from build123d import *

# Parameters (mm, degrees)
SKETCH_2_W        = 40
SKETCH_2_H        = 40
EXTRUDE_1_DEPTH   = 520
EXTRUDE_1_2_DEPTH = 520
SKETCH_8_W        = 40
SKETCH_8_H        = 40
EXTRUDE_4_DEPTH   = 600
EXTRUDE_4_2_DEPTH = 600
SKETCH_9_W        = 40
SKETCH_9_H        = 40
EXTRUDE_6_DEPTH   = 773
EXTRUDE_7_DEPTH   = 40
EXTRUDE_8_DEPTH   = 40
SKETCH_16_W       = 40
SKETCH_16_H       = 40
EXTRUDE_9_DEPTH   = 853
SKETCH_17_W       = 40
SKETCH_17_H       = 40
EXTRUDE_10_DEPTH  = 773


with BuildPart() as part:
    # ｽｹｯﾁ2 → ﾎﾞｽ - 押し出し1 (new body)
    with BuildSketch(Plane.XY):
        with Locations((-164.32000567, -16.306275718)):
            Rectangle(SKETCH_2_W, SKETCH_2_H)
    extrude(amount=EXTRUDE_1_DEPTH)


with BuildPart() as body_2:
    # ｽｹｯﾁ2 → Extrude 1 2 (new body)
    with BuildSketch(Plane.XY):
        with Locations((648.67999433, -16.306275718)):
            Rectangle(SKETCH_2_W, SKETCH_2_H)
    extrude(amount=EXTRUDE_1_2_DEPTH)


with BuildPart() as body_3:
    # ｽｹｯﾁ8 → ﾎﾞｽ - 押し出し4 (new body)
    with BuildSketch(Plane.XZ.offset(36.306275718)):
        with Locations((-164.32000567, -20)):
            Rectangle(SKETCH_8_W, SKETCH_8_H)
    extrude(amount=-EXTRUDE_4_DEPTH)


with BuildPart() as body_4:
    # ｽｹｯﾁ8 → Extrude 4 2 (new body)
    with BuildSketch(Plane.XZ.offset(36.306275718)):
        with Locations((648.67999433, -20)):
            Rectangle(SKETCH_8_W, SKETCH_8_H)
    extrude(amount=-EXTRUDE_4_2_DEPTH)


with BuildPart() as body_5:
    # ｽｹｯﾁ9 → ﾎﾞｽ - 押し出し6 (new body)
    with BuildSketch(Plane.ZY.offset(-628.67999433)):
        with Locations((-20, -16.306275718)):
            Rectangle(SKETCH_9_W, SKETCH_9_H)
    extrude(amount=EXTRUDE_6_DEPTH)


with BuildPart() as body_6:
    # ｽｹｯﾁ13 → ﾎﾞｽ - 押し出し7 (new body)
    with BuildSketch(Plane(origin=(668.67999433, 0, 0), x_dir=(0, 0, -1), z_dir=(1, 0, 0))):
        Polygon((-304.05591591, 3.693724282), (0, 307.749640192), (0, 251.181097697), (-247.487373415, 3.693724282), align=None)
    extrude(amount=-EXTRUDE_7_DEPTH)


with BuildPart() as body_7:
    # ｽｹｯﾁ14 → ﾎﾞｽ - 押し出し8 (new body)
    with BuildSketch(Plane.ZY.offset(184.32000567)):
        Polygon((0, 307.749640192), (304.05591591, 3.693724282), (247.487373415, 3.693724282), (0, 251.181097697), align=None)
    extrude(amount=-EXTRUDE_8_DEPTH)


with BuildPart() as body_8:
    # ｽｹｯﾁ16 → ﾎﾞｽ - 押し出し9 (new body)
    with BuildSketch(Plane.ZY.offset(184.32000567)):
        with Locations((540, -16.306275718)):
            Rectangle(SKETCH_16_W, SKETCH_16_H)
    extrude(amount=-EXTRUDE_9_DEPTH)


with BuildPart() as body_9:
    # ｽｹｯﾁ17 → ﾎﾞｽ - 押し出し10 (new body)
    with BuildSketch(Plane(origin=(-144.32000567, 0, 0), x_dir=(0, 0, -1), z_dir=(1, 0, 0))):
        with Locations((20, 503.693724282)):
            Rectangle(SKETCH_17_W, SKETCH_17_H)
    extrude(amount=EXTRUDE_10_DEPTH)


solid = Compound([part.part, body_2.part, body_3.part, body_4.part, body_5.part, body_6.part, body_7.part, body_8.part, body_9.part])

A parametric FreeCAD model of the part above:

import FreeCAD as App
import Part
import Sketcher
from FreeCAD import Vector
Q = App.Units.Quantity

doc = App.newDocument("Part")
body = doc.addObject("PartDesign::Body", "Body")

# Sketch on XY plane
sketch1 = body.newObject("Sketcher::SketchObject", "Sketch")
sketch1.AttachmentSupport = (doc.getObject("XY_Plane"), [""])
sketch1.MapMode = "FlatFace"
sketch1.addGeometry(Part.LineSegment(Vector(-184, 4, 0), Vector(-184, -36, 0)), False)
sketch1.addGeometry(Part.LineSegment(Vector(-184, -36, 0), Vector(-144, -36, 0)), False)
sketch1.addGeometry(Part.LineSegment(Vector(-144, -36, 0), Vector(-144, 4, 0)), False)
sketch1.addGeometry(Part.LineSegment(Vector(-144, 4, 0), Vector(-184, 4, 0)), False)
sketch1.addConstraint(Sketcher.Constraint("Coincident", 0, 2, 1, 1))
sketch1.addConstraint(Sketcher.Constraint("Coincident", 1, 2, 2, 1))
sketch1.addConstraint(Sketcher.Constraint("Coincident", 2, 2, 3, 1))
sketch1.addConstraint(Sketcher.Constraint("Coincident", 3, 2, 0, 1))
sketch1.addConstraint(Sketcher.Constraint("Vertical", 0))
sketch1.addConstraint(Sketcher.Constraint("Horizontal", 1))
sketch1.addConstraint(Sketcher.Constraint("Vertical", 2))
sketch1.addConstraint(Sketcher.Constraint("Horizontal", 3))
sketch1.addConstraint(Sketcher.Constraint("Equal", 3, 0))
sketch1.addConstraint(Sketcher.Constraint("DistanceX", 1, 1, 1, 2, Q("40 mm")))
sketch1.addConstraint(Sketcher.Constraint("DistanceX", 0, 2, -1, 1, Q("184.320006 mm")))
sketch1.addConstraint(Sketcher.Constraint("DistanceY", 0, 2, -1, 1, Q("36.306276 mm")))
pad1 = body.newObject("PartDesign::Pad", "Pad")
pad1.Profile = sketch1
pad1.Length = 520
body2 = doc.addObject("PartDesign::Body", "Body001")

# Sketch on XY plane
sketch2 = body2.newObject("Sketcher::SketchObject", "Sketch001")
sketch2.AttachmentSupport = (doc.getObject("XY_Plane001"), [""])
sketch2.MapMode = "FlatFace"
sketch2.addGeometry(Part.LineSegment(Vector(629, 4, 0), Vector(629, -36, 0)), False)
sketch2.addGeometry(Part.LineSegment(Vector(629, -36, 0), Vector(669, -36, 0)), False)
sketch2.addGeometry(Part.LineSegment(Vector(669, -36, 0), Vector(669, 4, 0)), False)
sketch2.addGeometry(Part.LineSegment(Vector(669, 4, 0), Vector(629, 4, 0)), False)
sketch2.addConstraint(Sketcher.Constraint("Coincident", 0, 2, 1, 1))
sketch2.addConstraint(Sketcher.Constraint("Coincident", 1, 2, 2, 1))
sketch2.addConstraint(Sketcher.Constraint("Coincident", 2, 2, 3, 1))
sketch2.addConstraint(Sketcher.Constraint("Coincident", 3, 2, 0, 1))
sketch2.addConstraint(Sketcher.Constraint("Vertical", 0))
sketch2.addConstraint(Sketcher.Constraint("Horizontal", 1))
sketch2.addConstraint(Sketcher.Constraint("Vertical", 2))
sketch2.addConstraint(Sketcher.Constraint("Horizontal", 3))
sketch2.addConstraint(Sketcher.Constraint("Equal", 3, 0))
sketch2.addConstraint(Sketcher.Constraint("DistanceX", 1, 1, 1, 2, Q("40 mm")))
sketch2.addConstraint(Sketcher.Constraint("DistanceX", -1, 1, 0, 2, Q("628.679994 mm")))
sketch2.addConstraint(Sketcher.Constraint("DistanceY", 0, 2, -1, 1, Q("36.306276 mm")))
pad2 = body2.newObject("PartDesign::Pad", "Pad001")
pad2.Profile = sketch2
pad2.Length = 520
body3 = doc.addObject("PartDesign::Body", "Body002")

# Sketch on XZ plane
sketch3 = body3.newObject("Sketcher::SketchObject", "Sketch002")
sketch3.AttachmentSupport = (doc.getObject("XZ_Plane002"), [""])
sketch3.MapMode = "FlatFace"
sketch3.AttachmentOffset = App.Placement(Vector(0, 0, 36.306276), App.Rotation())
sketch3.addGeometry(Part.LineSegment(Vector(-184, 0, 0), Vector(-184, -40, 0)), False)
sketch3.addGeometry(Part.LineSegment(Vector(-184, -40, 0), Vector(-144, -40, 0)), False)
sketch3.addGeometry(Part.LineSegment(Vector(-144, -40, 0), Vector(-144, 0, 0)), False)
sketch3.addGeometry(Part.LineSegment(Vector(-144, 0, 0), Vector(-184, 0, 0)), False)
sketch3.addConstraint(Sketcher.Constraint("Coincident", 0, 2, 1, 1))
sketch3.addConstraint(Sketcher.Constraint("Coincident", 1, 2, 2, 1))
sketch3.addConstraint(Sketcher.Constraint("Coincident", 2, 2, 3, 1))
sketch3.addConstraint(Sketcher.Constraint("Coincident", 3, 2, 0, 1))
sketch3.addConstraint(Sketcher.Constraint("Vertical", 0))
sketch3.addConstraint(Sketcher.Constraint("Horizontal", 1))
sketch3.addConstraint(Sketcher.Constraint("Vertical", 2))
sketch3.addConstraint(Sketcher.Constraint("Horizontal", 3))
sketch3.addConstraint(Sketcher.Constraint("PointOnObject", 2, 2, -1))
sketch3.addConstraint(Sketcher.Constraint("Equal", 3, 0))
sketch3.addConstraint(Sketcher.Constraint("DistanceX", 1, 1, 1, 2, Q("40 mm")))
sketch3.addConstraint(Sketcher.Constraint("DistanceX", 0, 2, -1, 1, Q("184.320006 mm")))
pad3 = body3.newObject("PartDesign::Pad", "Pad002")
pad3.Profile = sketch3
pad3.Length = 600
pad3.Reversed = True
body4 = doc.addObject("PartDesign::Body", "Body003")

# Sketch on XZ plane
sketch4 = body4.newObject("Sketcher::SketchObject", "Sketch003")
sketch4.AttachmentSupport = (doc.getObject("XZ_Plane003"), [""])
sketch4.MapMode = "FlatFace"
sketch4.AttachmentOffset = App.Placement(Vector(0, 0, 36.306276), App.Rotation())
sketch4.addGeometry(Part.LineSegment(Vector(629, 0, 0), Vector(629, -40, 0)), False)
sketch4.addGeometry(Part.LineSegment(Vector(629, -40, 0), Vector(669, -40, 0)), False)
sketch4.addGeometry(Part.LineSegment(Vector(669, -40, 0), Vector(669, 0, 0)), False)
sketch4.addGeometry(Part.LineSegment(Vector(669, 0, 0), Vector(629, 0, 0)), False)
sketch4.addConstraint(Sketcher.Constraint("Coincident", 0, 2, 1, 1))
sketch4.addConstraint(Sketcher.Constraint("Coincident", 1, 2, 2, 1))
sketch4.addConstraint(Sketcher.Constraint("Coincident", 2, 2, 3, 1))
sketch4.addConstraint(Sketcher.Constraint("Coincident", 3, 2, 0, 1))
sketch4.addConstraint(Sketcher.Constraint("Vertical", 0))
sketch4.addConstraint(Sketcher.Constraint("Horizontal", 1))
sketch4.addConstraint(Sketcher.Constraint("Vertical", 2))
sketch4.addConstraint(Sketcher.Constraint("Horizontal", 3))
sketch4.addConstraint(Sketcher.Constraint("PointOnObject", 2, 2, -1))
sketch4.addConstraint(Sketcher.Constraint("Equal", 3, 0))
sketch4.addConstraint(Sketcher.Constraint("DistanceX", 1, 1, 1, 2, Q("40 mm")))
sketch4.addConstraint(Sketcher.Constraint("DistanceX", -1, 1, 0, 2, Q("628.679994 mm")))
pad4 = body4.newObject("PartDesign::Pad", "Pad003")
pad4.Profile = sketch4
pad4.Length = 600
pad4.Reversed = True
body5 = doc.addObject("PartDesign::Body", "Body004")

# Sketch on YZ plane
sketch5 = body5.newObject("Sketcher::SketchObject", "Sketch004")
sketch5.AttachmentSupport = (doc.getObject("YZ_Plane004"), [""])
sketch5.MapMode = "FlatFace"
sketch5.AttachmentOffset = App.Placement(Vector(0, 0, 628.679994), App.Rotation())
sketch5.addGeometry(Part.LineSegment(Vector(4, -40, 0), Vector(-36, -40, 0)), False)
sketch5.addGeometry(Part.LineSegment(Vector(-36, -40, 0), Vector(-36, 0, 0)), False)
sketch5.addGeometry(Part.LineSegment(Vector(-36, 0, 0), Vector(4, 0, 0)), False)
sketch5.addGeometry(Part.LineSegment(Vector(4, 0, 0), Vector(4, -40, 0)), False)
sketch5.addConstraint(Sketcher.Constraint("Coincident", 0, 2, 1, 1))
sketch5.addConstraint(Sketcher.Constraint("Coincident", 1, 2, 2, 1))
sketch5.addConstraint(Sketcher.Constraint("Coincident", 2, 2, 3, 1))
sketch5.addConstraint(Sketcher.Constraint("Coincident", 3, 2, 0, 1))
sketch5.addConstraint(Sketcher.Constraint("Horizontal", 0))
sketch5.addConstraint(Sketcher.Constraint("Vertical", 1))
sketch5.addConstraint(Sketcher.Constraint("Horizontal", 2))
sketch5.addConstraint(Sketcher.Constraint("Vertical", 3))
sketch5.addConstraint(Sketcher.Constraint("PointOnObject", 1, 2, -1))
sketch5.addConstraint(Sketcher.Constraint("Equal", 2, 1))
sketch5.addConstraint(Sketcher.Constraint("DistanceX", 0, 2, 0, 1, Q("40 mm")))
sketch5.addConstraint(Sketcher.Constraint("DistanceX", 0, 2, -1, 1, Q("36.306276 mm")))
pad5 = body5.newObject("PartDesign::Pad", "Pad004")
pad5.Profile = sketch5
pad5.Length = 773
pad5.Reversed = True
body6 = doc.addObject("PartDesign::Body", "Body005")

# Sketch on YZ plane
sketch6 = body6.newObject("Sketcher::SketchObject", "Sketch005")
sketch6.AttachmentSupport = (doc.getObject("YZ_Plane005"), [""])
sketch6.MapMode = "FlatFace"
sketch6.AttachmentOffset = App.Placement(Vector(0, 0, 668.679994), App.Rotation())
sketch6.addGeometry(Part.LineSegment(Vector(308, 0, 0), Vector(4, 304, 0)), False)
sketch6.addGeometry(Part.LineSegment(Vector(4, 304, 0), Vector(4, 247, 0)), False)
sketch6.addGeometry(Part.LineSegment(Vector(4, 247, 0), Vector(251, 0, 0)), False)
sketch6.addGeometry(Part.LineSegment(Vector(251, 0, 0), Vector(308, 0, 0)), False)
sketch6.addConstraint(Sketcher.Constraint("Coincident", 0, 2, 1, 1))
sketch6.addConstraint(Sketcher.Constraint("Coincident", 1, 2, 2, 1))
sketch6.addConstraint(Sketcher.Constraint("Coincident", 2, 2, 3, 1))
sketch6.addConstraint(Sketcher.Constraint("Coincident", 3, 2, 0, 1))
sketch6.addConstraint(Sketcher.Constraint("Vertical", 1))
sketch6.addConstraint(Sketcher.Constraint("Horizontal", 3))
sketch6.addConstraint(Sketcher.Constraint("PointOnObject", 2, 2, -1))
sketch6.addConstraint(Sketcher.Constraint("Parallel", 0, 2))
sketch6.addConstraint(Sketcher.Constraint("Equal", 3, 1))
sketch6.addConstraint(Sketcher.Constraint("Distance", 0, Q("430 mm")))
sketch6.addConstraint(Sketcher.Constraint("Distance", 2, Q("350 mm")))
sketch6.addConstraint(Sketcher.Constraint("DistanceX", -1, 1, 3, 2, Q("307.74964 mm")))
pad6 = body6.newObject("PartDesign::Pad", "Pad005")
pad6.Profile = sketch6
pad6.Length = 40
pad6.Reversed = True
body7 = doc.addObject("PartDesign::Body", "Body006")

# Sketch on YZ plane
sketch7 = body7.newObject("Sketcher::SketchObject", "Sketch006")
sketch7.AttachmentSupport = (doc.getObject("YZ_Plane006"), [""])
sketch7.MapMode = "FlatFace"
sketch7.AttachmentOffset = App.Placement(Vector(0, 0, -184.320006), App.Rotation())
sketch7.addGeometry(Part.LineSegment(Vector(4, 304, 0), Vector(308, 0, 0)), False)
sketch7.addGeometry(Part.LineSegment(Vector(308, 0, 0), Vector(251, 0, 0)), False)
sketch7.addGeometry(Part.LineSegment(Vector(251, 0, 0), Vector(4, 247, 0)), False)
sketch7.addGeometry(Part.LineSegment(Vector(4, 247, 0), Vector(4, 304, 0)), False)
sketch7.addConstraint(Sketcher.Constraint("Coincident", 0, 2, 1, 1))
sketch7.addConstraint(Sketcher.Constraint("Coincident", 1, 2, 2, 1))
sketch7.addConstraint(Sketcher.Constraint("Coincident", 2, 2, 3, 1))
sketch7.addConstraint(Sketcher.Constraint("Coincident", 3, 2, 0, 1))
sketch7.addConstraint(Sketcher.Constraint("Horizontal", 1))
sketch7.addConstraint(Sketcher.Constraint("Vertical", 3))
sketch7.addConstraint(Sketcher.Constraint("PointOnObject", 0, 2, -1))
sketch7.addConstraint(Sketcher.Constraint("Parallel", 0, 2))
sketch7.addConstraint(Sketcher.Constraint("Equal", 1, 3))
sketch7.addConstraint(Sketcher.Constraint("Distance", 0, Q("430 mm")))
sketch7.addConstraint(Sketcher.Constraint("Distance", 2, Q("350 mm")))
sketch7.addConstraint(Sketcher.Constraint("DistanceX", -1, 1, 0, 2, Q("307.74964 mm")))
pad7 = body7.newObject("PartDesign::Pad", "Pad006")
pad7.Profile = sketch7
pad7.Length = 40
body8 = doc.addObject("PartDesign::Body", "Body007")

# Sketch on YZ plane
sketch8 = body8.newObject("Sketcher::SketchObject", "Sketch007")
sketch8.AttachmentSupport = (doc.getObject("YZ_Plane007"), [""])
sketch8.MapMode = "FlatFace"
sketch8.AttachmentOffset = App.Placement(Vector(0, 0, -184.320006), App.Rotation())
sketch8.addGeometry(Part.LineSegment(Vector(4, 520, 0), Vector(-36, 520, 0)), False)
sketch8.addGeometry(Part.LineSegment(Vector(-36, 520, 0), Vector(-36, 560, 0)), False)
sketch8.addGeometry(Part.LineSegment(Vector(-36, 560, 0), Vector(4, 560, 0)), False)
sketch8.addGeometry(Part.LineSegment(Vector(4, 560, 0), Vector(4, 520, 0)), False)
sketch8.addConstraint(Sketcher.Constraint("Coincident", 0, 2, 1, 1))
sketch8.addConstraint(Sketcher.Constraint("Coincident", 1, 2, 2, 1))
sketch8.addConstraint(Sketcher.Constraint("Coincident", 2, 2, 3, 1))
sketch8.addConstraint(Sketcher.Constraint("Coincident", 3, 2, 0, 1))
sketch8.addConstraint(Sketcher.Constraint("Horizontal", 0))
sketch8.addConstraint(Sketcher.Constraint("Vertical", 1))
sketch8.addConstraint(Sketcher.Constraint("Horizontal", 2))
sketch8.addConstraint(Sketcher.Constraint("Vertical", 3))
sketch8.addConstraint(Sketcher.Constraint("Equal", 2, 1))
sketch8.addConstraint(Sketcher.Constraint("DistanceX", 0, 2, 0, 1, Q("40 mm")))
sketch8.addConstraint(Sketcher.Constraint("DistanceY", -1, 1, 0, 2, Q("520 mm")))
sketch8.addConstraint(Sketcher.Constraint("DistanceX", 0, 2, -1, 1, Q("36.306276 mm")))
pad8 = body8.newObject("PartDesign::Pad", "Pad007")
pad8.Profile = sketch8
pad8.Length = 853
body9 = doc.addObject("PartDesign::Body", "Body008")

# Sketch on YZ plane
sketch9 = body9.newObject("Sketcher::SketchObject", "Sketch008")
sketch9.AttachmentSupport = (doc.getObject("YZ_Plane008"), [""])
sketch9.MapMode = "FlatFace"
sketch9.AttachmentOffset = App.Placement(Vector(0, 0, -144.320006), App.Rotation())
sketch9.addGeometry(Part.LineSegment(Vector(524, 0, 0), Vector(484, 0, 0)), False)
sketch9.addGeometry(Part.LineSegment(Vector(484, 0, 0), Vector(484, -40, 0)), False)
sketch9.addGeometry(Part.LineSegment(Vector(484, -40, 0), Vector(524, -40, 0)), False)
sketch9.addGeometry(Part.LineSegment(Vector(524, -40, 0), Vector(524, 0, 0)), False)
sketch9.addConstraint(Sketcher.Constraint("Coincident", 0, 2, 1, 1))
sketch9.addConstraint(Sketcher.Constraint("Coincident", 1, 2, 2, 1))
sketch9.addConstraint(Sketcher.Constraint("Coincident", 2, 2, 3, 1))
sketch9.addConstraint(Sketcher.Constraint("Coincident", 3, 2, 0, 1))
sketch9.addConstraint(Sketcher.Constraint("Horizontal", 0))
sketch9.addConstraint(Sketcher.Constraint("Vertical", 1))
sketch9.addConstraint(Sketcher.Constraint("Horizontal", 2))
sketch9.addConstraint(Sketcher.Constraint("Vertical", 3))
sketch9.addConstraint(Sketcher.Constraint("PointOnObject", 0, 2, -1))
sketch9.addConstraint(Sketcher.Constraint("Equal", 2, 1))
sketch9.addConstraint(Sketcher.Constraint("DistanceX", 0, 2, 0, 1, Q("40 mm")))
sketch9.addConstraint(Sketcher.Constraint("DistanceX", -1, 1, 0, 2, Q("483.693724 mm")))
pad9 = body9.newObject("PartDesign::Pad", "Pad008")
pad9.Profile = sketch9
pad9.Length = 773

doc.recompute()
